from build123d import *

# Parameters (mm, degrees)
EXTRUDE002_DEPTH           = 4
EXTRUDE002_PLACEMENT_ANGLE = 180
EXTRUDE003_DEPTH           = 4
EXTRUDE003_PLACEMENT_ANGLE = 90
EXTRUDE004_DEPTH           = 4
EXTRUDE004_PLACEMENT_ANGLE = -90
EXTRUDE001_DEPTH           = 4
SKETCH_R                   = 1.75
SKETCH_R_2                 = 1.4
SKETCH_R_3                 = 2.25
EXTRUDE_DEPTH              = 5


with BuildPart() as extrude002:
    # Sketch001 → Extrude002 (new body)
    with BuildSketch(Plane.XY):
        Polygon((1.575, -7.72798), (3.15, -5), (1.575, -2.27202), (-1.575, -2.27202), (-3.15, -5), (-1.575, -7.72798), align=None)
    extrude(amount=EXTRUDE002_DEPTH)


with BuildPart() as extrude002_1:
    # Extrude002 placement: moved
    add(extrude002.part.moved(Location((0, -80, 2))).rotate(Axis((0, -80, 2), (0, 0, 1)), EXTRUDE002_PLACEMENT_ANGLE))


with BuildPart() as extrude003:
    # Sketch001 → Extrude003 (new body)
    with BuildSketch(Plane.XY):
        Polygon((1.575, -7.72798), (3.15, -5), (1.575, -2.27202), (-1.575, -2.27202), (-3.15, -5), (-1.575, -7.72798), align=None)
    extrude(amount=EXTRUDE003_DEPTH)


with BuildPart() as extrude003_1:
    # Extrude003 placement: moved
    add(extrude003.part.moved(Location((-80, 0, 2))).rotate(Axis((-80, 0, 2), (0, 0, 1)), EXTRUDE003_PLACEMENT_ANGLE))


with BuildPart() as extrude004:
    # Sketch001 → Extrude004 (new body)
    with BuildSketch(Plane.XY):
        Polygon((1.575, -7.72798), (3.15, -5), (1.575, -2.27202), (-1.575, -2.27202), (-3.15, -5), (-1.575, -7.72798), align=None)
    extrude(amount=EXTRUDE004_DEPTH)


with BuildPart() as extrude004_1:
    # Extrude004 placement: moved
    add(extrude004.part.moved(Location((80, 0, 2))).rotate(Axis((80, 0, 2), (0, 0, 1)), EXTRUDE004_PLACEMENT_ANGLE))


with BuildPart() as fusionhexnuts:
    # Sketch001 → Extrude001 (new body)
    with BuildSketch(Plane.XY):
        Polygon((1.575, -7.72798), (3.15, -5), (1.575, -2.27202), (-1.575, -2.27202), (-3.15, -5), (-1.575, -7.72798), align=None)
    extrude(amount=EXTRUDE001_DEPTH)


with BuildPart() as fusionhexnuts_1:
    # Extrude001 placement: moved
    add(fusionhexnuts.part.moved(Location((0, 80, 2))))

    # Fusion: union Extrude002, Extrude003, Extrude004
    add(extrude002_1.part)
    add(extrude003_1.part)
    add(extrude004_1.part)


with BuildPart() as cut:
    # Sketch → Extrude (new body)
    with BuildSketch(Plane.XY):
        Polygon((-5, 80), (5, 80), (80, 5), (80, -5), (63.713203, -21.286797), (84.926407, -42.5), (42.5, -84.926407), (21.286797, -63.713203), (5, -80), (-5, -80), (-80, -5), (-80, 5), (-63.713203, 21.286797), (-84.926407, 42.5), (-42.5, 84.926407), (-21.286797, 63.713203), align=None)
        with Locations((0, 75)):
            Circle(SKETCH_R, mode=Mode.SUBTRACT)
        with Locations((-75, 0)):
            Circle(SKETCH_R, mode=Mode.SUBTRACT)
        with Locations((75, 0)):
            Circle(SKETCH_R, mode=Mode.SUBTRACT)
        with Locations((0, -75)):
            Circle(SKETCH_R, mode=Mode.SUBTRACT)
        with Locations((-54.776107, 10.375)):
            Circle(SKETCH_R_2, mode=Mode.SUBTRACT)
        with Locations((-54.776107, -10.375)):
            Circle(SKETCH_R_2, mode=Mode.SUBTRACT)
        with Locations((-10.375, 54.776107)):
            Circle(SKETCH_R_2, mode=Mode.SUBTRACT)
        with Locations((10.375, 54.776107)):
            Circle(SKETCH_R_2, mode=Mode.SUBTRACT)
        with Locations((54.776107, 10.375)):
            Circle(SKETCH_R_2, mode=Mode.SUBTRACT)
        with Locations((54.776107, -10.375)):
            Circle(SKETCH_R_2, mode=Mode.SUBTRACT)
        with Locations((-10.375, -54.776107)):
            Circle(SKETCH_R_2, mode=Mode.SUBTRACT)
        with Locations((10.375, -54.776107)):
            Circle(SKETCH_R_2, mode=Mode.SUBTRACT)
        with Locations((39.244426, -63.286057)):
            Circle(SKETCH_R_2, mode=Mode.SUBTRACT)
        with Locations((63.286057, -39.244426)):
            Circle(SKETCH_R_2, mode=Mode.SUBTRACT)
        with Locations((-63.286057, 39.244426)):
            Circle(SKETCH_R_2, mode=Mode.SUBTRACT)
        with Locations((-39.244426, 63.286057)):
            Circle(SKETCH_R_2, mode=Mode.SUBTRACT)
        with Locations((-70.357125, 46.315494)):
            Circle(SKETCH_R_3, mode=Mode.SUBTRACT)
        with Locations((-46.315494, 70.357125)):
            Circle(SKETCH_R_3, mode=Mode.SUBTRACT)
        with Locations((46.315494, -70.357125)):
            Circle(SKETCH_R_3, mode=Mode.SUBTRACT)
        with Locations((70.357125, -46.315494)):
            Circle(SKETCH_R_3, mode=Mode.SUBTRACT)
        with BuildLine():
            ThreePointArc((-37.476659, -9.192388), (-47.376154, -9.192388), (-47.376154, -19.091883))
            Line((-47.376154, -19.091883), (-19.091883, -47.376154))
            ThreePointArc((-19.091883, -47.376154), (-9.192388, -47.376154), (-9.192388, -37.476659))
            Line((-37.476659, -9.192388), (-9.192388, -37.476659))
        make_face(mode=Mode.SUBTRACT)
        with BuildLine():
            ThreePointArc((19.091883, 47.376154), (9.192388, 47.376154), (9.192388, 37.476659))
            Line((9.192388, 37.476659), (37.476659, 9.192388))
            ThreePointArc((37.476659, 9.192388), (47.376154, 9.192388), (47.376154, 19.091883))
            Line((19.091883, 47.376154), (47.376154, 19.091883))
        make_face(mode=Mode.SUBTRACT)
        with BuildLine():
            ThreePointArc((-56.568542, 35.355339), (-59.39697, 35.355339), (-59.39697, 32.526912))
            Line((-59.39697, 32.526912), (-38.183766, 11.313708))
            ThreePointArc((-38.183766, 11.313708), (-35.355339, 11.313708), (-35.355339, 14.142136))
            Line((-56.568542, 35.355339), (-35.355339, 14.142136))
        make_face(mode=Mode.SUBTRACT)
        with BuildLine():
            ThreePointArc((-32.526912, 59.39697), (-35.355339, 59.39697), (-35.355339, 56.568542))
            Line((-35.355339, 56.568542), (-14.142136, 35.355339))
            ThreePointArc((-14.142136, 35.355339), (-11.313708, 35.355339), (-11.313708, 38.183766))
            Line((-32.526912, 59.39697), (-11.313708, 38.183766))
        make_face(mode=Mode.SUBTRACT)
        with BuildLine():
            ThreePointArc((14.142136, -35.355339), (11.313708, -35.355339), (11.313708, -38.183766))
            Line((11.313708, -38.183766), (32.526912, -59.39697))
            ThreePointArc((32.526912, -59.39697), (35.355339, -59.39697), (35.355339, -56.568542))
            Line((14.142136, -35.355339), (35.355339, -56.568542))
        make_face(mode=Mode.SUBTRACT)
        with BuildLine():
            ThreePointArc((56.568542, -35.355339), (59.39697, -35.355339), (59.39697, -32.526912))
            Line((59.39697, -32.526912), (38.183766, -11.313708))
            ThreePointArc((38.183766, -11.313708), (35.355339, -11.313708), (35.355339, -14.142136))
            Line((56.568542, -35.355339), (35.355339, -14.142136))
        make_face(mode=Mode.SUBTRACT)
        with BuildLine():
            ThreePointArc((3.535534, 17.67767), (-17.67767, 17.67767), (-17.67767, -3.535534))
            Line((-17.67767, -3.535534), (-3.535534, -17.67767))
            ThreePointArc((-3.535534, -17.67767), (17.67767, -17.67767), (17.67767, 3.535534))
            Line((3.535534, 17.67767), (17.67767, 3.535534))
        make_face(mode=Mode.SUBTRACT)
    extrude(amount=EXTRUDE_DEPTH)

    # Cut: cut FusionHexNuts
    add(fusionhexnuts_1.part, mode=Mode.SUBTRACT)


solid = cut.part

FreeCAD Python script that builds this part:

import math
import FreeCAD as App
import Part
import Sketcher
Q = App.Units.Quantity

doc = App.newDocument("Part")
body = doc.addObject("PartDesign::Body", "Body")

sketch1 = body.newObject("Sketcher::SketchObject", "Sketch")
sketch1.AttachmentSupport = (doc.getObject("XY_Plane"), [""])
sketch1.MapMode = "FlatFace"
sketch1.addGeometry([
    Part.LineSegment(App.Vector(1.575, -7.72798, 0), App.Vector(3.15, -5, 0)),
    Part.LineSegment(App.Vector(3.15, -5, 0), App.Vector(1.575, -2.27202, 0)),
    Part.LineSegment(App.Vector(1.575, -2.27202, 0), App.Vector(-1.575, -2.27202, 0)),
    Part.LineSegment(App.Vector(-1.575, -2.27202, 0), App.Vector(-3.15, -5, 0)),
    Part.LineSegment(App.Vector(-3.15, -5, 0), App.Vector(-1.575, -7.72798, 0)),
    Part.LineSegment(App.Vector(-1.575, -7.72798, 0), App.Vector(1.575, -7.72798, 0)),
], False)
sketch1.addConstraint([
    Sketcher.Constraint("Coincident", 0, 2, 1, 1),
    Sketcher.Constraint("Coincident", 1, 2, 2, 1),
    Sketcher.Constraint("Coincident", 2, 2, 3, 1),
    Sketcher.Constraint("Coincident", 3, 2, 4, 1),
    Sketcher.Constraint("Coincident", 4, 2, 5, 1),
    Sketcher.Constraint("Coincident", 5, 2, 0, 1),
    Sketcher.Constraint("Horizontal", 2),
    Sketcher.Constraint("Horizontal", 5),
    Sketcher.Constraint("Symmetric", 0, 2, 3, 2, -2),
    Sketcher.Constraint("Parallel", 0, 3),
    Sketcher.Constraint("Parallel", 1, 4),
    Sketcher.Constraint("Vertical", 2, 2, 4, 2),
    Sketcher.Constraint("Vertical", 1, 2, 5, 2),
    Sketcher.Constraint("Angle", 0, Q("60 deg")),
    Sketcher.Constraint("DistanceY", 0, 2, -1, 1, 5.0),
    Sketcher.Constraint("DistanceX", 2, 2, 2, 1, 3.15),
    Sketcher.Constraint("DistanceX", 3, 2, 0, 2, 6.3),
])
pad1 = body.newObject("PartDesign::Pad", "Pad")
pad1.Profile = sketch1
pad1.Length = 4
body2 = doc.addObject("PartDesign::Body", "Body001")
doc.recompute()

body.Placement = App.Placement(App.Vector(0, -80, 2), App.Rotation(App.Vector(0, 0, 1), 180))
boolean = body2.newObject("PartDesign::Boolean", "Boolean")
boolean.Type = "Fuse"
boolean.addObjects([body])
body3 = doc.addObject("PartDesign::Body", "Body002")

sketch2 = body3.newObject("Sketcher::SketchObject", "Sketch001")
sketch2.AttachmentSupport = (doc.getObject("XY_Plane002"), [""])
sketch2.MapMode = "FlatFace"
sketch2.addGeometry([
    Part.LineSegment(App.Vector(1.575, -7.72798, 0), App.Vector(3.15, -5, 0)),
    Part.LineSegment(App.Vector(3.15, -5, 0), App.Vector(1.575, -2.27202, 0)),
    Part.LineSegment(App.Vector(1.575, -2.27202, 0), App.Vector(-1.575, -2.27202, 0)),
    Part.LineSegment(App.Vector(-1.575, -2.27202, 0), App.Vector(-3.15, -5, 0)),
    Part.LineSegment(App.Vector(-3.15, -5, 0), App.Vector(-1.575, -7.72798, 0)),
    Part.LineSegment(App.Vector(-1.575, -7.72798, 0), App.Vector(1.575, -7.72798, 0)),
], False)
sketch2.addConstraint([
    Sketcher.Constraint("Coincident", 0, 2, 1, 1),
    Sketcher.Constraint("Coincident", 1, 2, 2, 1),
    Sketcher.Constraint("Coincident", 2, 2, 3, 1),
    Sketcher.Constraint("Coincident", 3, 2, 4, 1),
    Sketcher.Constraint("Coincident", 4, 2, 5, 1),
    Sketcher.Constraint("Coincident", 5, 2, 0, 1),
    Sketcher.Constraint("Horizontal", 2),
    Sketcher.Constraint("Horizontal", 5),
    Sketcher.Constraint("Symmetric", 0, 2, 3, 2, -2),
    Sketcher.Constraint("Parallel", 0, 3),
    Sketcher.Constraint("Parallel", 1, 4),
    Sketcher.Constraint("Vertical", 2, 2, 4, 2),
    Sketcher.Constraint("Vertical", 1, 2, 5, 2),
    Sketcher.Constraint("Angle", 0, Q("60 deg")),
    Sketcher.Constraint("DistanceY", 0, 2, -1, 1, 5.0),
    Sketcher.Constraint("DistanceX", 2, 2, 2, 1, 3.15),
    Sketcher.Constraint("DistanceX", 3, 2, 0, 2, 6.3),
])
pad2 = body3.newObject("PartDesign::Pad", "Pad001")
pad2.Profile = sketch2
pad2.Length = 4
body4 = doc.addObject("PartDesign::Body", "Body003")
doc.recompute()

body3.Placement = App.Placement(App.Vector(-80, 0, 2), App.Rotation(App.Vector(0, 0, 1), 90))
boolean2 = body4.newObject("PartDesign::Boolean", "Boolean001")
boolean2.Type = "Fuse"
boolean2.addObjects([body3])
body5 = doc.addObject("PartDesign::Body", "Body004")

sketch3 = body5.newObject("Sketcher::SketchObject", "Sketch002")
sketch3.AttachmentSupport = (doc.getObject("XY_Plane004"), [""])
sketch3.MapMode = "FlatFace"
sketch3.addGeometry([
    Part.LineSegment(App.Vector(1.575, -7.72798, 0), App.Vector(3.15, -5, 0)),
    Part.LineSegment(App.Vector(3.15, -5, 0), App.Vector(1.575, -2.27202, 0)),
    Part.LineSegment(App.Vector(1.575, -2.27202, 0), App.Vector(-1.575, -2.27202, 0)),
    Part.LineSegment(App.Vector(-1.575, -2.27202, 0), App.Vector(-3.15, -5, 0)),
    Part.LineSegment(App.Vector(-3.15, -5, 0), App.Vector(-1.575, -7.72798, 0)),
    Part.LineSegment(App.Vector(-1.575, -7.72798, 0), App.Vector(1.575, -7.72798, 0)),
], False)
sketch3.addConstraint([
    Sketcher.Constraint("Coincident", 0, 2, 1, 1),
    Sketcher.Constraint("Coincident", 1, 2, 2, 1),
    Sketcher.Constraint("Coincident", 2, 2, 3, 1),
    Sketcher.Constraint("Coincident", 3, 2, 4, 1),
    Sketcher.Constraint("Coincident", 4, 2, 5, 1),
    Sketcher.Constraint("Coincident", 5, 2, 0, 1),
    Sketcher.Constraint("Horizontal", 2),
    Sketcher.Constraint("Horizontal", 5),
    Sketcher.Constraint("Symmetric", 0, 2, 3, 2, -2),
    Sketcher.Constraint("Parallel", 0, 3),
    Sketcher.Constraint("Parallel", 1, 4),
    Sketcher.Constraint("Vertical", 2, 2, 4, 2),
    Sketcher.Constraint("Vertical", 1, 2, 5, 2),
    Sketcher.Constraint("Angle", 0, Q("60 deg")),
    Sketcher.Constraint("DistanceY", 0, 2, -1, 1, 5.0),
    Sketcher.Constraint("DistanceX", 2, 2, 2, 1, 3.15),
    Sketcher.Constraint("DistanceX", 3, 2, 0, 2, 6.3),
])
pad3 = body5.newObject("PartDesign::Pad", "Pad002")
pad3.Profile = sketch3
pad3.Length = 4
body6 = doc.addObject("PartDesign::Body", "Body005")
doc.recompute()

body5.Placement = App.Placement(App.Vector(80, 0, 2), App.Rotation(App.Vector(0, 0, 1), 270))
boolean3 = body6.newObject("PartDesign::Boolean", "Boolean002")
boolean3.Type = "Fuse"
boolean3.addObjects([body5])
body7 = doc.addObject("PartDesign::Body", "Body006")

sketch4 = body7.newObject("Sketcher::SketchObject", "Sketch003")
sketch4.AttachmentSupport = (doc.getObject("XY_Plane006"), [""])
sketch4.MapMode = "FlatFace"
sketch4.addGeometry([
    Part.LineSegment(App.Vector(1.575, -7.72798, 0), App.Vector(3.15, -5, 0)),
    Part.LineSegment(App.Vector(3.15, -5, 0), App.Vector(1.575, -2.27202, 0)),
    Part.LineSegment(App.Vector(1.575, -2.27202, 0), App.Vector(-1.575, -2.27202, 0)),
    Part.LineSegment(App.Vector(-1.575, -2.27202, 0), App.Vector(-3.15, -5, 0)),
    Part.LineSegment(App.Vector(-3.15, -5, 0), App.Vector(-1.575, -7.72798, 0)),
    Part.LineSegment(App.Vector(-1.575, -7.72798, 0), App.Vector(1.575, -7.72798, 0)),
], False)
sketch4.addConstraint([
    Sketcher.Constraint("Coincident", 0, 2, 1, 1),
    Sketcher.Constraint("Coincident", 1, 2, 2, 1),
    Sketcher.Constraint("Coincident", 2, 2, 3, 1),
    Sketcher.Constraint("Coincident", 3, 2, 4, 1),
    Sketcher.Constraint("Coincident", 4, 2, 5, 1),
    Sketcher.Constraint("Coincident", 5, 2, 0, 1),
    Sketcher.Constraint("Horizontal", 2),
    Sketcher.Constraint("Horizontal", 5),
    Sketcher.Constraint("Symmetric", 0, 2, 3, 2, -2),
    Sketcher.Constraint("Parallel", 0, 3),
    Sketcher.Constraint("Parallel", 1, 4),
    Sketcher.Constraint("Vertical", 2, 2, 4, 2),
    Sketcher.Constraint("Vertical", 1, 2, 5, 2),
    Sketcher.Constraint("Angle", 0, Q("60 deg")),
    Sketcher.Constraint("DistanceY", 0, 2, -1, 1, 5.0),
    Sketcher.Constraint("DistanceX", 2, 2, 2, 1, 3.15),
    Sketcher.Constraint("DistanceX", 3, 2, 0, 2, 6.3),
])
pad4 = body7.newObject("PartDesign::Pad", "Pad003")
pad4.Profile = sketch4
pad4.Length = 4
body8 = doc.addObject("PartDesign::Body", "Body007")
body8.AllowCompound = True
doc.recompute()

body7.Placement = App.Placement(App.Vector(0, 80, 2), App.Rotation(App.Vector(0, 0, 1), 0))
boolean4 = body8.newObject("PartDesign::Boolean", "Boolean003")
boolean4.Type = "Fuse"
boolean4.addObjects([body7])
doc.recompute()

boolean5 = body8.newObject("PartDesign::Boolean", "Boolean004")
boolean5.Type = "Fuse"
boolean5.addObjects([body2])
doc.recompute()

boolean6 = body8.newObject("PartDesign::Boolean", "Boolean005")
boolean6.Type = "Fuse"
boolean6.addObjects([body4])
doc.recompute()

boolean7 = body8.newObject("PartDesign::Boolean", "Boolean006")
boolean7.Type = "Fuse"
boolean7.addObjects([body6])
body9 = doc.addObject("PartDesign::Body", "Body008")

sketch5 = body9.newObject("Sketcher::SketchObject", "Sketch004")
sketch5.AttachmentSupport = (doc.getObject("XY_Plane008"), [""])
sketch5.MapMode = "FlatFace"
sketch5.addGeometry([
    Part.LineSegment(App.Vector(5, 80, 0), App.Vector(-5, 80, 0)),
    Part.LineSegment(App.Vector(-5, 80, 0), App.Vector(-21.286797, 63.713203, 0)),
    Part.LineSegment(App.Vector(-21.286797, 63.713203, 0), App.Vector(-42.5, 84.926407, 0)),
    Part.LineSegment(App.Vector(-42.5, 84.926407, 0), App.Vector(-84.926407, 42.5, 0)),
    Part.LineSegment(App.Vector(-84.926407, 42.5, 0), App.Vector(-63.713203, 21.286797, 0)),
    Part.LineSegment(App.Vector(-63.713203, 21.286797, 0), App.Vector(-80, 5, 0)),
    Part.LineSegment(App.Vector(-80, 5, 0), App.Vector(-80, -5, 0)),
    Part.LineSegment(App.Vector(-80, -5, 0), App.Vector(-5, -80, 0)),
    Part.LineSegment(App.Vector(-5, -80, 0), App.Vector(5, -80, 0)),
    Part.LineSegment(App.Vector(5, -80, 0), App.Vector(21.286797, -63.713203, 0)),
    Part.LineSegment(App.Vector(21.286797, -63.713203, 0), App.Vector(42.5, -84.926407, 0)),
    Part.LineSegment(App.Vector(42.5, -84.926407, 0), App.Vector(84.926407, -42.5, 0)),
    Part.LineSegment(App.Vector(84.926407, -42.5, 0), App.Vector(63.713203, -21.286797, 0)),
    Part.LineSegment(App.Vector(63.713203, -21.286797, 0), App.Vector(80, -5, 0)),
    Part.LineSegment(App.Vector(80, -5, 0), App.Vector(80, 5, 0)),
    Part.LineSegment(App.Vector(80, 5, 0), App.Vector(5, 80, 0)),
    Part.Circle(App.Vector(46.315494, -70.357125, 0), App.Vector(0, 0, 1), 2.25),
    Part.Circle(App.Vector(39.244426, -63.286057, 0), App.Vector(0, 0, 1), 1.4),
    Part.Circle(App.Vector(70.357125, -46.315494, 0), App.Vector(0, 0, 1), 2.25),
    Part.Circle(App.Vector(63.286057, -39.244426, 0), App.Vector(0, 0, 1), 1.4),
    Part.LineSegment(App.Vector(14.142136, -35.355339, 0), App.Vector(35.355339, -56.568542, 0)),
    Part.ArcOfCircle(Part.Circle(App.Vector(33.941125, -57.982756, 0), App.Vector(0, 0, 1), 2), math.radians(-134.99999), math.radians(45.00001)),
    Part.LineSegment(App.Vector(32.526912, -59.39697, 0), App.Vector(11.313708, -38.183766, 0)),
    Part.ArcOfCircle(Part.Circle(App.Vector(12.727922, -36.769553, 0), App.Vector(0, 0, 1), 2), math.radians(44.99999), math.radians(224.99999)),
    Part.Circle(App.Vector(10.375, -54.776107, 0), App.Vector(0, 0, 1), 1.4),
    Part.LineSegment(App.Vector(56.568542, -35.355339, 0), App.Vector(35.355339, -14.142136, 0)),
    Part.ArcOfCircle(Part.Circle(App.Vector(36.769553, -12.727922, 0), App.Vector(0, 0, 1), 2), math.radians(45.00001), math.radians(225.00001)),
    Part.LineSegment(App.Vector(38.183766, -11.313708, 0), App.Vector(59.39697, -32.526912, 0)),
    Part.ArcOfCircle(Part.Circle(App.Vector(57.982756, -33.941125, 0), App.Vector(0, 0, 1), 2), math.radians(-135.00001), math.radians(44.99999)),
    Part.Circle(App.Vector(54.776107, -10.375, 0), App.Vector(0, 0, 1), 1.4),
    Part.Circle(App.Vector(0, -75, 0), App.Vector(0, 0, 1), 1.75),
    Part.Circle(App.Vector(-10.375, -54.776107, 0), App.Vector(0, 0, 1), 1.4),
    Part.LineSegment(App.Vector(-37.476659, -9.192388, 0), App.Vector(-9.192388, -37.476659, 0)),
    Part.ArcOfCircle(Part.Circle(App.Vector(-14.142136, -42.426406, 0), App.Vector(0, 0, 1), 7), math.radians(-135), math.radians(45)),
    Part.LineSegment(App.Vector(-19.091883, -47.376154, 0), App.Vector(-47.376154, -19.091883, 0)),
    Part.ArcOfCircle(Part.Circle(App.Vector(-42.426406, -14.142136, 0), App.Vector(0, 0, 1), 7), math.radians(45), math.radians(225)),
    Part.Circle(App.Vector(-54.776107, -10.375, 0), App.Vector(0, 0, 1), 1.4),
    Part.Circle(App.Vector(75, 0, 0), App.Vector(0, 0, 1), 1.75),
    Part.Circle(App.Vector(54.776107, 10.375, 0), App.Vector(0, 0, 1), 1.4),
    Part.LineSegment(App.Vector(19.091883, 47.376154, 0), App.Vector(47.376154, 19.091883, 0)),
    Part.ArcOfCircle(Part.Circle(App.Vector(42.426406, 14.142136, 0), App.Vector(0, 0, 1), 7), math.radians(-135), math.radians(45)),
    Part.LineSegment(App.Vector(37.476659, 9.192388, 0), App.Vector(9.192388, 37.476659, 0)),
    Part.ArcOfCircle(Part.Circle(App.Vector(14.142136, 42.426406, 0), App.Vector(0, 0, 1), 7), math.radians(45), math.radians(225)),
    Part.Circle(App.Vector(10.375, 54.776107, 0), App.Vector(0, 0, 1), 1.4),
    Part.LineSegment(App.Vector(3.535534, 17.67767, 0), App.Vector(17.67767, 3.535534, 0)),
    Part.ArcOfCircle(Part.Circle(App.Vector(7.071068, -7.071068, 0), App.Vector(0, 0, 1), 15), math.radians(-135), math.radians(45)),
    Part.LineSegment(App.Vector(-3.535534, -17.67767, 0), App.Vector(-17.67767, -3.535534, 0)),
    Part.ArcOfCircle(Part.Circle(App.Vector(-7.071068, 7.071068, 0), App.Vector(0, 0, 1), 15), math.radians(45), math.radians(225)),
    Part.Circle(App.Vector(-54.776107, 10.375, 0), App.Vector(0, 0, 1), 1.4),
    Part.Circle(App.Vector(-75, 0, 0), App.Vector(0, 0, 1), 1.75),
    Part.LineSegment(App.Vector(-56.568542, 35.355339, 0), App.Vector(-35.355339, 14.142136, 0)),
    Part.ArcOfCircle(Part.Circle(App.Vector(-36.769553, 12.727922, 0), App.Vector(0, 0, 1), 2), math.radians(-134.99999), math.radians(45.00001)),
    Part.LineSegment(App.Vector(-38.183766, 11.313708, 0), App.Vector(-59.39697, 32.526912, 0)),
    Part.ArcOfCircle(Part.Circle(App.Vector(-57.982756, 33.941125, 0), App.Vector(0, 0, 1), 2), math.radians(44.99999), math.radians(224.99999)),
    Part.Circle(App.Vector(-10.375, 54.776107, 0), App.Vector(0, 0, 1), 1.4),
    Part.LineSegment(App.Vector(-32.526912, 59.39697, 0), App.Vector(-11.313708, 38.183766, 0)),
    Part.ArcOfCircle(Part.Circle(App.Vector(-12.727922, 36.769553, 0), App.Vector(0, 0, 1), 2), math.radians(-135.00001), math.radians(44.99999)),
    Part.LineSegment(App.Vector(-14.142136, 35.355339, 0), App.Vector(-35.355339, 56.568542, 0)),
    Part.ArcOfCircle(Part.Circle(App.Vector(-33.941125, 57.982756, 0), App.Vector(0, 0, 1), 2), math.radians(45.00001), math.radians(225.00001)),
    Part.Circle(App.Vector(0, 75, 0), App.Vector(0, 0, 1), 1.75),
    Part.Circle(App.Vector(-63.286057, 39.244426, 0), App.Vector(0, 0, 1), 1.4),
    Part.Circle(App.Vector(-70.357125, 46.315494, 0), App.Vector(0, 0, 1), 2.25),
    Part.Circle(App.Vector(-39.244426, 63.286057, 0), App.Vector(0, 0, 1), 1.4),
    Part.Circle(App.Vector(-46.315494, 70.357125, 0), App.Vector(0, 0, 1), 2.25),
], False)
sketch5.addConstraint([
    Sketcher.Constraint("Coincident", 0, 2, 1, 1),
    Sketcher.Constraint("Coincident", 1, 2, 2, 1),
    Sketcher.Constraint("Coincident", 2, 2, 3, 1),
    Sketcher.Constraint("Coincident", 3, 2, 4, 1),
    Sketcher.Constraint("Coincident", 4, 2, 5, 1),
    Sketcher.Constraint("Coincident", 5, 2, 6, 1),
    Sketcher.Constraint("Coincident", 6, 2, 7, 1),
    Sketcher.Constraint("Coincident", 7, 2, 8, 1),
    Sketcher.Constraint("Coincident", 8, 2, 9, 1),
    Sketcher.Constraint("Coincident", 9, 2, 10, 1),
    Sketcher.Constraint("Coincident", 10, 2, 11, 1),
    Sketcher.Constraint("Coincident", 11, 2, 12, 1),
    Sketcher.Constraint("Coincident", 12, 2, 13, 1),
    Sketcher.Constraint("Coincident", 13, 2, 14, 1),
    Sketcher.Constraint("Coincident", 14, 2, 15, 1),
    Sketcher.Constraint("Coincident", 15, 2, 0, 1),
    Sketcher.Constraint("Tangent", 20, 2, 21, 2),
    Sketcher.Constraint("Tangent", 21, 1, 22, 1),
    Sketcher.Constraint("Tangent", 22, 2, 23, 2),
    Sketcher.Constraint("Tangent", 23, 1, 20, 1),
    Sketcher.Constraint("Tangent", 25, 2, 26, 2),
    Sketcher.Constraint("Tangent", 26, 1, 27, 1),
    Sketcher.Constraint("Tangent", 27, 2, 28, 2),
    Sketcher.Constraint("Tangent", 28, 1, 25, 1),
    Sketcher.Constraint("Tangent", 32, 2, 33, 2),
    Sketcher.Constraint("Tangent", 33, 1, 34, 1),
    Sketcher.Constraint("Tangent", 34, 2, 35, 2),
    Sketcher.Constraint("Tangent", 35, 1, 32, 1),
    Sketcher.Constraint("Tangent", 39, 2, 40, 2),
    Sketcher.Constraint("Tangent", 40, 1, 41, 1),
    Sketcher.Constraint("Tangent", 41, 2, 42, 2),
    Sketcher.Constraint("Tangent", 42, 1, 39, 1),
    Sketcher.Constraint("Tangent", 44, 2, 45, 2),
    Sketcher.Constraint("Tangent", 45, 1, 46, 1),
    Sketcher.Constraint("Tangent", 46, 2, 47, 2),
    Sketcher.Constraint("Tangent", 47, 1, 44, 1),
    Sketcher.Constraint("Tangent", 50, 2, 51, 2),
    Sketcher.Constraint("Tangent", 51, 1, 52, 1),
    Sketcher.Constraint("Tangent", 52, 2, 53, 2),
    Sketcher.Constraint("Tangent", 53, 1, 50, 1),
    Sketcher.Constraint("Tangent", 55, 2, 56, 2),
    Sketcher.Constraint("Tangent", 56, 1, 57, 1),
    Sketcher.Constraint("Tangent", 57, 2, 58, 2),
    Sketcher.Constraint("Tangent", 58, 1, 55, 1),
    Sketcher.Constraint("Horizontal", 0),
    Sketcher.Constraint("Vertical", 6),
    Sketcher.Constraint("Horizontal", 8),
    Sketcher.Constraint("Vertical", 14),
    Sketcher.Constraint("Equal", 16, 18),
    Sketcher.Constraint("Equal", 17, 19),
    Sketcher.Constraint("Equal", 21, 23),
    Sketcher.Constraint("Equal", 19, 24),
    Sketcher.Constraint("Equal", 23, 26),
    Sketcher.Constraint("Equal", 26, 28),
    Sketcher.Constraint("Equal", 24, 29),
    Sketcher.Constraint("Equal", 29, 31),
    Sketcher.Constraint("Equal", 33, 35),
    Sketcher.Constraint("Equal", 31, 36),
    Sketcher.Constraint("Equal", 30, 37),
    Sketcher.Constraint("Equal", 36, 38),
    Sketcher.Constraint("Equal", 35, 40),
    Sketcher.Constraint("Equal", 40, 42),
    Sketcher.Constraint("Equal", 38, 43),
    Sketcher.Constraint("Equal", 45, 47),
    Sketcher.Constraint("Equal", 43, 48),
    Sketcher.Constraint("Equal", 37, 49),
    Sketcher.Constraint("Equal", 28, 51),
    Sketcher.Constraint("Equal", 51, 53),
    Sketcher.Constraint("Equal", 48, 54),
    Sketcher.Constraint("Equal", 53, 56),
    Sketcher.Constraint("Equal", 56, 58),
    Sketcher.Constraint("Equal", 49, 59),
    Sketcher.Constraint("Equal", 54, 60),
    Sketcher.Constraint("Equal", 18, 61),
    Sketcher.Constraint("Equal", 60, 62),
    Sketcher.Constraint("Equal", 61, 63),
    Sketcher.Constraint("Symmetric", 36, 3, 38, 3, -1, 1),
    Sketcher.Constraint("Symmetric", 35, 3, 40, 3, -1, 1),
    Sketcher.Constraint("Symmetric", 33, 3, 42, 3, -1, 1),
    Sketcher.Constraint("Symmetric", 31, 3, 43, 3, -1, 1),
    Sketcher.Constraint("Symmetric", 45, 3, 47, 3, -1, 1),
    Sketcher.Constraint("Symmetric", 29, 3, 48, 3, -1, 1),
    Sketcher.Constraint("Symmetric", 37, 3, 49, 3, -1, 1),
    Sketcher.Constraint("Symmetric", 26, 3, 51, 3, -1, 1),
    Sketcher.Constraint("Symmetric", 28, 3, 53, 3, -1, 1),
    Sketcher.Constraint("Symmetric", 24, 3, 54, 3, -1, 1),
    Sketcher.Constraint("Symmetric", 23, 3, 56, 3, -1, 1),
    Sketcher.Constraint("Symmetric", 21, 3, 58, 3, -1, 1),
    Sketcher.Constraint("Symmetric", 30, 3, 59, 3, -1, 1),
    Sketcher.Constraint("Symmetric", 19, 3, 60, 3, -1, 1),
    Sketcher.Constraint("Symmetric", 18, 3, 61, 3, -1, 1),
    Sketcher.Constraint("Symmetric", 17, 3, 62, 3, -1, 1),
    Sketcher.Constraint("Symmetric", 16, 3, 63, 3, -1, 1),
    Sketcher.Constraint("Symmetric", 0, 2, 8, 2, -1, 1),
    Sketcher.Constraint("Symmetric", 1, 2, 9, 2, -1, 1),
    Sketcher.Constraint("Symmetric", 2, 2, 10, 2, -1, 1),
    Sketcher.Constraint("Symmetric", 3, 2, 11, 2, -1, 1),
    Sketcher.Constraint("Symmetric", 4, 2, 12, 2, -1, 1),
    Sketcher.Constraint("Symmetric", 5, 2, 13, 2, -1, 1),
    Sketcher.Constraint("Symmetric", 24, 3, 31, 3, -2),
    Sketcher.Constraint("Symmetric", 29, 3, 36, 3, -2),
    Sketcher.Constraint("PointOnObject", 30, 3, -2),
    Sketcher.Constraint("PointOnObject", 37, 3, -1),
    Sketcher.Constraint("Perpendicular", 1, 2),
    Sketcher.Constraint("Perpendicular", 2, 3),
    Sketcher.Constraint("Perpendicular", 3, 4),
    Sketcher.Constraint("Perpendicular", 4, 5),
    Sketcher.Constraint("Perpendicular", 5, 7),
    Sketcher.Constraint("Perpendicular", 13, 15),
    Sketcher.Constraint("Parallel", 15, 20),
    Sketcher.Constraint("Parallel", 22, 25),
    Sketcher.Constraint("Parallel", 27, 32),
    Sketcher.Constraint("Parallel", 41, 44),
    Sketcher.Constraint("Horizontal", 6, 2, 13, 2),
    Sketcher.Constraint("Horizontal", 5, 2, 14, 2),
    Sketcher.Constraint("Horizontal", 35, 3, 25, 2),
    Sketcher.Constraint("Horizontal", 23, 1, 28, 1),
    Sketcher.Constraint("Vertical", 0, 2, 7, 2),
    Sketcher.Constraint("Vertical", 42, 3, 23, 1),
    Sketcher.Constraint("Vertical", 20, 2, 25, 2),
    Sketcher.Constraint("Equal", 8, 6),
    Sketcher.Constraint("Equal", 2, 4),
    Sketcher.Constraint("Equal", 1, 5),
    Sketcher.Constraint("Equal", 12, 20),
    Sketcher.Constraint("Equal", 22, 25),
    Sketcher.Constraint("Radius", 21, 2.0),
    Sketcher.Constraint("Radius", 33, 7.0),
    Sketcher.Constraint("Radius", 45, 15.0),
    Sketcher.Constraint("Diameter", 16, 4.5),
    Sketcher.Constraint("Diameter", 17, 2.8),
    Sketcher.Constraint("Diameter", 30, 3.5),
    Sketcher.Constraint("DistanceX", 0, 2, 0, 1, 10.0),
    Sketcher.Constraint("Distance", 2, 30.0),
    Sketcher.Constraint("Distance", 3, 60.0),
    Sketcher.Constraint("Distance", 32, 40.0),
    Sketcher.Constraint("Distance", 44, 20.000001),
    Sketcher.Constraint("DistanceY", 30, 3, -1, 1, 75.0),
    Sketcher.Constraint("DistanceX", -1, 1, 37, 3, 75.0),
    Sketcher.Constraint("DistanceY", -1, 1, 0, 2, 80.0),
    Sketcher.Constraint("DistanceX", -1, 1, 24, 3, 10.375),
    Sketcher.Constraint("DistanceY", 29, 3, -1, 1, 10.375),
    Sketcher.Constraint("DistanceX", -1, 1, 20, 2, 35.355339),
    Sketcher.Constraint("DistanceY", 21, 1, -1, 1, 59.39697),
    Sketcher.Constraint("DistanceX", -1, 1, 16, 3, 46.315494),
    Sketcher.Constraint("DistanceY", 16, 3, -1, 1, 70.357125),
    Sketcher.Constraint("DistanceX", -1, 1, 17, 3, 39.244426),
    Sketcher.Constraint("DistanceY", 17, 3, -1, 1, 63.286057),
    Sketcher.Constraint("DistanceX", -1, 1, 18, 3, 70.357125),
    Sketcher.Constraint("DistanceY", 18, 3, -1, 1, 46.315494),
    Sketcher.Constraint("DistanceX", -1, 1, 19, 3, 63.286057),
    Sketcher.Constraint("DistanceY", 19, 3, -1, 1, 39.244426),
    Sketcher.Constraint("DistanceY", 24, 3, -1, 1, 54.776107),
    Sketcher.Constraint("DistanceX", -1, 1, 29, 3, 54.776107),
])
pad5 = body9.newObject("PartDesign::Pad", "Pad004")
pad5.Profile = sketch5
pad5.Length = 5
doc.recompute()

boolean8 = body9.newObject("PartDesign::Boolean", "Boolean007")
boolean8.Type = "Cut"
boolean8.addObjects([body8])

doc.recompute()
